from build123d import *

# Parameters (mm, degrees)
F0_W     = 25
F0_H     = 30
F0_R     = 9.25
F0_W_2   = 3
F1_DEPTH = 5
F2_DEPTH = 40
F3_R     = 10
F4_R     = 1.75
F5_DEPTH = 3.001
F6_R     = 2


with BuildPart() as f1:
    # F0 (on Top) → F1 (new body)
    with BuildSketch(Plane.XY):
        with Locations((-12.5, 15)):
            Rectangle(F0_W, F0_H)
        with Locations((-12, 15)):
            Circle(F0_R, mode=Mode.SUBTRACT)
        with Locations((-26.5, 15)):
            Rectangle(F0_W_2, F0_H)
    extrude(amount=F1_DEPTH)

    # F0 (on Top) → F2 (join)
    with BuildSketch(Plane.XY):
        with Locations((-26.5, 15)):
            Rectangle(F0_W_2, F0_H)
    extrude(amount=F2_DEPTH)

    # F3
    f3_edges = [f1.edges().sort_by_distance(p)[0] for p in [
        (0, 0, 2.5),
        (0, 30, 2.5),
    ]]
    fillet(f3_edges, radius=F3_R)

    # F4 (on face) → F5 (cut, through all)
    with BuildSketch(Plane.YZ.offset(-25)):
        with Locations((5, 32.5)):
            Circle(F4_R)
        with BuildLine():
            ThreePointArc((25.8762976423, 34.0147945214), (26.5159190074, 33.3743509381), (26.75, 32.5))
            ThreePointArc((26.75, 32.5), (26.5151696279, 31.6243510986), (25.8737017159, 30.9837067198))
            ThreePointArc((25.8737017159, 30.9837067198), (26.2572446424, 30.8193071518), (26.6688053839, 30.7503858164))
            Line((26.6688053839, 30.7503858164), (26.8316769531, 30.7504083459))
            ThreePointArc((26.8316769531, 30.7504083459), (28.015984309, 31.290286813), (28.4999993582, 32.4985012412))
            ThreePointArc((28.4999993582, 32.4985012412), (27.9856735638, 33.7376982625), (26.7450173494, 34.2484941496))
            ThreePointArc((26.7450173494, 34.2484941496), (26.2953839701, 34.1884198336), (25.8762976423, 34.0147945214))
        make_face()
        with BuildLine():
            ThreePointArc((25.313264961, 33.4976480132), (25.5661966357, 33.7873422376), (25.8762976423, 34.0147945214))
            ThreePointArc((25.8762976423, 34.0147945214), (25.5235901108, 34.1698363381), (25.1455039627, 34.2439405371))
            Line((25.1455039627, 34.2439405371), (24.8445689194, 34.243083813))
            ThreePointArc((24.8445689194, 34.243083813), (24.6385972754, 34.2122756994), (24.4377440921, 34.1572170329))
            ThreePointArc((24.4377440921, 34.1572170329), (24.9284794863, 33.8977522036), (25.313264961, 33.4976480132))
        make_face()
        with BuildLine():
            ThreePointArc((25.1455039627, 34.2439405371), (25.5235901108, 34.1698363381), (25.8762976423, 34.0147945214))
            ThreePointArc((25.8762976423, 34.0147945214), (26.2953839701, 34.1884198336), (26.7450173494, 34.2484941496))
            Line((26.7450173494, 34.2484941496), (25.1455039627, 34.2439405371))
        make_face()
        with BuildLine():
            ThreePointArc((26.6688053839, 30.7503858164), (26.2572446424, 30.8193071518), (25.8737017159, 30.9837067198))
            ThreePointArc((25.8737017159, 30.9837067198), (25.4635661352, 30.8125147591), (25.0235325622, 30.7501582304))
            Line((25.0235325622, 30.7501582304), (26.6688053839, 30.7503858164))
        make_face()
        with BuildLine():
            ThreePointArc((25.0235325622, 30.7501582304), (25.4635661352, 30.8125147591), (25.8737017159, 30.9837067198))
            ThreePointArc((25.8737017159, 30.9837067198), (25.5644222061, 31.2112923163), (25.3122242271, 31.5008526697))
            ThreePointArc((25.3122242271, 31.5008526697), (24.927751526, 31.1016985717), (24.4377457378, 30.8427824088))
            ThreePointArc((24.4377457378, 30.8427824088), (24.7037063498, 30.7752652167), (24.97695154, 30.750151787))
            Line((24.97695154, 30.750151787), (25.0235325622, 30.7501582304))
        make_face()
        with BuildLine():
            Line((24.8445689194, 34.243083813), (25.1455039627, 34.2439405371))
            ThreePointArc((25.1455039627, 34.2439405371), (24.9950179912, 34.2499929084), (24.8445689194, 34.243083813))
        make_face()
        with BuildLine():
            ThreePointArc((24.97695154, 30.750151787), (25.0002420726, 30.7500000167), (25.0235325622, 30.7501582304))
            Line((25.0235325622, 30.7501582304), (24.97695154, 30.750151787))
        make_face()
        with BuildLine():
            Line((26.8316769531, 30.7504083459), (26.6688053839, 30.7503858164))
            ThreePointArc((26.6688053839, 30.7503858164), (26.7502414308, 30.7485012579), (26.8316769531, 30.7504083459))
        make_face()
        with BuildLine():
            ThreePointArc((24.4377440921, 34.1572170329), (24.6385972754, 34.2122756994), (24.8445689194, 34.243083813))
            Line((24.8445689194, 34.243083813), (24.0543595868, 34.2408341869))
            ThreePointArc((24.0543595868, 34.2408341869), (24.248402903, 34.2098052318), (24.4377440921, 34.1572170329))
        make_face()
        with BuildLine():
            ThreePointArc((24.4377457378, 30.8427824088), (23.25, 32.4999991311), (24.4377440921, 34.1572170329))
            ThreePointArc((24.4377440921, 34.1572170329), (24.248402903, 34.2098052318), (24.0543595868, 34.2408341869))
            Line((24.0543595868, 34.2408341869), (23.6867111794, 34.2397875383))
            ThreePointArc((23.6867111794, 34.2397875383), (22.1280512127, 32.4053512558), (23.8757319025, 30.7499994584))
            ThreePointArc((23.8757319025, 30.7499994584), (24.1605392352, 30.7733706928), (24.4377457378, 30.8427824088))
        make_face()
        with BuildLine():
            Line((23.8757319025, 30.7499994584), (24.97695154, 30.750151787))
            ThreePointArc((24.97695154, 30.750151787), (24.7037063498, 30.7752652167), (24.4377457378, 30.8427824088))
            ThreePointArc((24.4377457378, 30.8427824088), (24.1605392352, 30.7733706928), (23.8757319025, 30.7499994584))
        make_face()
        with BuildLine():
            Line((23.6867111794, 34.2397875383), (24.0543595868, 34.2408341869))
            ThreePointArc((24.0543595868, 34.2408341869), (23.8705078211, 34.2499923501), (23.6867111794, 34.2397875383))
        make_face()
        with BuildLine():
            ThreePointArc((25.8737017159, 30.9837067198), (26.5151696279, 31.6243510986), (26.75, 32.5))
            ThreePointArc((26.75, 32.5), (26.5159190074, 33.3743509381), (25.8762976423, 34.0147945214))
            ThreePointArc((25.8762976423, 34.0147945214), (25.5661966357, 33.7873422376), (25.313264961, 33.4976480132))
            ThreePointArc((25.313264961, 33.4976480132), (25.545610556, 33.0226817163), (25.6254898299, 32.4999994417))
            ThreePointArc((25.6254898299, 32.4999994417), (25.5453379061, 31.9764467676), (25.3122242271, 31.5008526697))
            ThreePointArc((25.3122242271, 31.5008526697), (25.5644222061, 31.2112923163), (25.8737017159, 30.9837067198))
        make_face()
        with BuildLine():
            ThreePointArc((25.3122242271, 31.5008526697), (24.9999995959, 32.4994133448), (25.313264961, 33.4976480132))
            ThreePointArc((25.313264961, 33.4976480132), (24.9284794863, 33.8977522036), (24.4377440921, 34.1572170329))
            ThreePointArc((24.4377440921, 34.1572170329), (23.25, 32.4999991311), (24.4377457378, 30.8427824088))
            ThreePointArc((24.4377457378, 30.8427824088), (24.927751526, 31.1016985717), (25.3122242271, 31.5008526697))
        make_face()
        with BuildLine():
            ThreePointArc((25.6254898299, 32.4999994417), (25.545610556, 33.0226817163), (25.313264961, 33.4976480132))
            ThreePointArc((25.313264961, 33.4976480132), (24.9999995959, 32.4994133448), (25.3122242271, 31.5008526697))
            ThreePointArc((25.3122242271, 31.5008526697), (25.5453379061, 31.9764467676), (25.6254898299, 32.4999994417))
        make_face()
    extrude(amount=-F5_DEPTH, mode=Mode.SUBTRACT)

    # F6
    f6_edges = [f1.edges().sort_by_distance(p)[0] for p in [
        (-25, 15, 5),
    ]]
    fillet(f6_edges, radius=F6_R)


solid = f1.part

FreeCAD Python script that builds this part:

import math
import FreeCAD as App
import Part
import Sketcher

V = App.Vector
Q = App.Units.Quantity


def edges_at(feature, points):
    """Names of the edges that pass closest to the given points."""
    edges = feature.Shape.Edges
    near = lambda p: min(range(len(edges)), key=lambda i: edges[i].distToShape(Part.Vertex(*p))[0])
    return sorted({f"Edge{near(p) + 1}" for p in points})


def add_polygon(sketch, points):
    """Adds a closed chain of lines whose ends are joined by coincident constraints."""
    first, n = sketch.GeometryCount, len(points)
    for a, b in zip(points, points[1:] + points[:1]):
        sketch.addGeometry(Part.LineSegment(App.Vector(*a, 0), App.Vector(*b, 0)), False)
    for i in range(n):
        sketch.addConstraint(Sketcher.Constraint("Coincident", first + i, 2, first + (i + 1) % n, 1))

doc = App.newDocument("Part")
params = doc.addObject("Spreadsheet::Sheet", "Params")
for row, (alias, value) in enumerate([
    ("sketch1_diameter", "18.5 mm"),
    ("sketch1_width", "28 mm"),
    ("sketch1_height", "30 mm"),
    ("pad1_length", "5 mm"),
    ("sketch2_width", "3 mm"),
    ("sketch2_height", "30 mm"),
    ("pad2_length", "40 mm"),
    ("fillet_radius", "10 mm"),
    ("sketch3_diameter", "3.5 mm"),
    ("fillet2_radius", "2 mm"),
], start=1):
    params.set(f"A{row}", alias)
    params.set(f"B{row}", "=" + value)
    params.setAlias(f"B{row}", alias)

body = doc.addObject("PartDesign::Body", "Body")

# Sketch on XY plane
sketch1 = body.newObject("Sketcher::SketchObject", "Sketch")
sketch1.AttachmentSupport = (doc.getObject("XY_Plane"), [""])
sketch1.MapMode = "FlatFace"
add_polygon(sketch1, [(0, 0), (0, 30), (-28, 30), (-28, 0)])  # lines 0-3
sketch1.addGeometry(Part.Circle(V(-12, 15, 0), V(0, 0, 1), 9), False)  # 4
sketch1.addConstraint([
    Sketcher.Constraint("Vertical", 0),
    Sketcher.Constraint("Horizontal", 1),
    Sketcher.Constraint("Vertical", 2),
    Sketcher.Constraint("Horizontal", 3),
    Sketcher.Constraint("Coincident", 3, 2, -1, 1),
    Sketcher.Constraint("Diameter", 4, Q("18.5 mm")),
    Sketcher.Constraint("DistanceX", 1, 2, 1, 1, Q("28 mm")),
    Sketcher.Constraint("DistanceY", 0, 1, 0, 2, Q("30 mm")),
    Sketcher.Constraint("DistanceX", 4, 3, -1, 1, Q("12 mm")),
    Sketcher.Constraint("DistanceY", -1, 1, 4, 3, Q("15 mm")),
])
sketch1.setExpression("Constraints[9]", "Params.sketch1_diameter")
sketch1.setExpression("Constraints[10]", "Params.sketch1_width")
sketch1.setExpression("Constraints[11]", "Params.sketch1_height")
pad1 = body.newObject("PartDesign::Pad", "Pad")
pad1.Profile = sketch1
pad1.setExpression("Length", "Params.pad1_length")

# Sketch on XY plane
sketch2 = body.newObject("Sketcher::SketchObject", "Sketch001")
sketch2.AttachmentSupport = (doc.getObject("XY_Plane"), [""])
sketch2.MapMode = "FlatFace"
add_polygon(sketch2, [(-28, 30), (-28, 0), (-25, 0), (-25, 30)])  # lines 0-3
sketch2.addConstraint([
    Sketcher.Constraint("Vertical", 0),
    Sketcher.Constraint("Horizontal", 1),
    Sketcher.Constraint("Vertical", 2),
    Sketcher.Constraint("Horizontal", 3),
    Sketcher.Constraint("PointOnObject", 0, 2, -1),
    Sketcher.Constraint("DistanceX", 1, 1, 1, 2, Q("3 mm")),
    Sketcher.Constraint("DistanceY", 0, 2, 0, 1, Q("30 mm")),
    Sketcher.Constraint("DistanceX", 0, 2, -1, 1, Q("28 mm")),
])
sketch2.setExpression("Constraints[9]", "Params.sketch2_width")
sketch2.setExpression("Constraints[10]", "Params.sketch2_height")
pad2 = body.newObject("PartDesign::Pad", "Pad001")
pad2.Profile = sketch2
pad2.setExpression("Length", "Params.pad2_length")
doc.recompute()

fillet = body.newObject("PartDesign::Fillet", "Fillet")
fillet.Base = (pad2, edges_at(pad2, [(0, 0, 2.5), (0, 30, 2.5)]))
fillet.setExpression("Radius", "Params.fillet_radius")

# Sketch on YZ plane
sketch3 = body.newObject("Sketcher::SketchObject", "Sketch002")
sketch3.AttachmentSupport = (doc.getObject("YZ_Plane"), [""])
sketch3.MapMode = "FlatFace"
sketch3.AttachmentOffset = App.Placement(V(0, 0, -25), App.Rotation())
sketch3.addGeometry([
    Part.Circle(V(5, 32.5, 0), V(0, 0, 1), 1.75),  # 0
    Part.ArcOfCircle(Part.Circle(V(23.875, 32.5, 0), V(0, 0, 1), 1.75), math.radians(96), math.radians(270)),  # 1
    Part.LineSegment(V(23.876, 30.75, 0), V(24.977, 30.75, 0)),  # 2
    Part.ArcOfCircle(Part.Circle(V(25, 32.5, 0), V(0, 0, 1), 1.75), math.radians(-90.75), math.radians(-89.23)),  # 3
    Part.LineSegment(V(25.024, 30.75, 0), V(26.669, 30.75, 0)),  # 4
    Part.ArcOfCircle(Part.Circle(V(26.75, 32.499, 0), V(0, 0, 1), 1.75), math.radians(-92.66), math.radians(-87.32)),  # 5
    Part.ArcOfCircle(Part.Circle(V(26.75, 32.499, 0), V(0, 0, 1), 1.75), math.radians(-87), math.radians(0)),  # 6
    Part.ArcOfCircle(Part.Circle(V(26.75, 32.499, 0), V(0, 0, 1), 1.75), math.radians(0), math.radians(90)),  # 7
    Part.LineSegment(V(26.745, 34.248, 0), V(25.146, 34.244, 0)),  # 8
    Part.ArcOfCircle(Part.Circle(V(25, 32.5, 0), V(0, 0, 1), 1.75), math.radians(85.23), math.radians(95.1)),  # 9
    Part.LineSegment(V(24.845, 34.243, 0), V(24.054, 34.241, 0)),  # 10
    Part.ArcOfCircle(Part.Circle(V(23.875, 32.5, 0), V(0, 0, 1), 1.75), math.radians(84.13), math.radians(96.19)),  # 11
], False)
sketch3.addConstraint([
    Sketcher.Constraint("Tangent", 1, 2, 2, 1),
    Sketcher.Constraint("Coincident", 2, 2, 3, 1),
    Sketcher.Constraint("Coincident", 3, 2, 4, 1),
    Sketcher.Constraint("Coincident", 4, 2, 5, 1),
    Sketcher.Constraint("Tangent", 5, 2, 6, 1),
    Sketcher.Constraint("Tangent", 6, 2, 7, 1),
    Sketcher.Constraint("Tangent", 7, 2, 8, 1),
    Sketcher.Constraint("Coincident", 8, 2, 9, 1),
    Sketcher.Constraint("Coincident", 9, 2, 10, 1),
    Sketcher.Constraint("Coincident", 10, 2, 11, 1),
    Sketcher.Constraint("Tangent", 11, 2, 1, 1),
    Sketcher.Constraint("Coincident", 7, 3, 5, 3),
    Sketcher.Constraint("Coincident", 9, 3, 3, 3),
    Sketcher.Constraint("Equal", 0, 1),
    Sketcher.Constraint("Equal", 1, 3),
    Sketcher.Constraint("Equal", 3, 5),
    Sketcher.Constraint("Equal", 7, 9),
    Sketcher.Constraint("Equal", 9, 11),
    Sketcher.Constraint("Parallel", 2, 4),
    Sketcher.Constraint("Parallel", 8, 10),
    Sketcher.Constraint("Horizontal", 0, 3, 1, 3),
    Sketcher.Constraint("Horizontal", 1, 3, 3, 3),
    Sketcher.Constraint("Horizontal", 7, 3, 6, 2),
    Sketcher.Constraint("Diameter", 0, Q("3.5 mm")),
    Sketcher.Constraint("DistanceX", -1, 1, 0, 3, Q("5 mm")),
    Sketcher.Constraint("DistanceX", -1, 1, 3, 3, Q("25 mm")),
    Sketcher.Constraint("DistanceY", -1, 1, 0, 3, Q("32.5 mm")),
    Sketcher.Constraint("DistanceX", -1, 1, 6, 2, Q("28.499999 mm")),
    Sketcher.Constraint("DistanceY", -1, 1, 5, 3, Q("32.498501 mm")),
    Sketcher.Constraint("DistanceX", 1, 2, 3, 2, Q("1.147801 mm")),
    Sketcher.Constraint("Distance", 2, Q("1.10122 mm")),
    Sketcher.Constraint("Distance", 8, Q("1.59952 mm")),
    Sketcher.Constraint("DistanceX", -1, 1, 1, 3, Q("23.87549 mm")),
    Sketcher.Constraint("DistanceY", -1, 1, 5, 2, Q("30.750408 mm")),
    Sketcher.Constraint("DistanceX", -1, 1, 9, 2, Q("24.844569 mm")),
    Sketcher.Constraint("DistanceX", -1, 1, 11, 2, Q("23.686711 mm")),
])
sketch3.setExpression("Constraints[23]", "Params.sketch3_diameter")
pocket1 = body.newObject("PartDesign::Pocket", "Pocket")
pocket1.Profile = sketch3
pocket1.Type = "ThroughAll"
doc.recompute()

fillet2 = body.newObject("PartDesign::Fillet", "Fillet001")
fillet2.Base = (pocket1, edges_at(pocket1, [(-25, 15, 5)]))
fillet2.setExpression("Radius", "Params.fillet2_radius")

doc.recompute()
